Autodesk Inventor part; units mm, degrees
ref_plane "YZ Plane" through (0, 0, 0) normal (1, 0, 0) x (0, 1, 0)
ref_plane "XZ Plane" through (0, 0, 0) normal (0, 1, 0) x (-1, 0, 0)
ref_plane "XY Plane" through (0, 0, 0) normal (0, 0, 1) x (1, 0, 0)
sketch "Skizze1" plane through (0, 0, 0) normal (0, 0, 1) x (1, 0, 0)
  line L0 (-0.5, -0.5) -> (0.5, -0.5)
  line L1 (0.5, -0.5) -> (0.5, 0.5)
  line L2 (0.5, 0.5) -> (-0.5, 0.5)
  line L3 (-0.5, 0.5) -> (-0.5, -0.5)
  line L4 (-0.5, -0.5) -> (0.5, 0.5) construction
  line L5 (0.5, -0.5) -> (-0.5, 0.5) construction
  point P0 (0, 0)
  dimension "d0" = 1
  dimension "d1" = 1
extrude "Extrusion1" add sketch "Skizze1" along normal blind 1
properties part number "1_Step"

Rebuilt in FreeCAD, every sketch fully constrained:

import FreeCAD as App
import Part
import Sketcher

V = App.Vector
Q = App.Units.Quantity

doc = App.newDocument("Part")
body = doc.addObject("PartDesign::Body", "Body")

sketch1 = body.newObject("Sketcher::SketchObject", "Sketch")
sketch1.AttachmentSupport = (doc.getObject("XY_Plane"), [""])
sketch1.MapMode = "FlatFace"
sketch1.addGeometry([
    Part.LineSegment(V(-0.5, 0.5, 0), V(-0.5, -0.5, 0)),
    Part.LineSegment(V(-0.5, -0.5, 0), V(0.5, -0.5, 0)),
    Part.LineSegment(V(0.5, -0.5, 0), V(0.5, 0.5, 0)),
    Part.LineSegment(V(0.5, 0.5, 0), V(-0.5, 0.5, 0)),
], False)
sketch1.addConstraint([
    Sketcher.Constraint("Coincident", 0, 2, 1, 1),
    Sketcher.Constraint("Coincident", 1, 2, 2, 1),
    Sketcher.Constraint("Coincident", 2, 2, 3, 1),
    Sketcher.Constraint("Coincident", 3, 2, 0, 1),
    Sketcher.Constraint("Vertical", 0),
    Sketcher.Constraint("Horizontal", 1),
    Sketcher.Constraint("Vertical", 2),
    Sketcher.Constraint("Horizontal", 3),
    Sketcher.Constraint("Symmetric", 0, 2, 2, 2, -1, 1),
    Sketcher.Constraint("Equal", 3, 0),
    Sketcher.Constraint("DistanceX", 1, 1, 1, 2, Q("1 mm")),
])
pad1 = body.newObject("PartDesign::Pad", "Pad")
pad1.Profile = sketch1
pad1.Length = 1

doc.recompute()
